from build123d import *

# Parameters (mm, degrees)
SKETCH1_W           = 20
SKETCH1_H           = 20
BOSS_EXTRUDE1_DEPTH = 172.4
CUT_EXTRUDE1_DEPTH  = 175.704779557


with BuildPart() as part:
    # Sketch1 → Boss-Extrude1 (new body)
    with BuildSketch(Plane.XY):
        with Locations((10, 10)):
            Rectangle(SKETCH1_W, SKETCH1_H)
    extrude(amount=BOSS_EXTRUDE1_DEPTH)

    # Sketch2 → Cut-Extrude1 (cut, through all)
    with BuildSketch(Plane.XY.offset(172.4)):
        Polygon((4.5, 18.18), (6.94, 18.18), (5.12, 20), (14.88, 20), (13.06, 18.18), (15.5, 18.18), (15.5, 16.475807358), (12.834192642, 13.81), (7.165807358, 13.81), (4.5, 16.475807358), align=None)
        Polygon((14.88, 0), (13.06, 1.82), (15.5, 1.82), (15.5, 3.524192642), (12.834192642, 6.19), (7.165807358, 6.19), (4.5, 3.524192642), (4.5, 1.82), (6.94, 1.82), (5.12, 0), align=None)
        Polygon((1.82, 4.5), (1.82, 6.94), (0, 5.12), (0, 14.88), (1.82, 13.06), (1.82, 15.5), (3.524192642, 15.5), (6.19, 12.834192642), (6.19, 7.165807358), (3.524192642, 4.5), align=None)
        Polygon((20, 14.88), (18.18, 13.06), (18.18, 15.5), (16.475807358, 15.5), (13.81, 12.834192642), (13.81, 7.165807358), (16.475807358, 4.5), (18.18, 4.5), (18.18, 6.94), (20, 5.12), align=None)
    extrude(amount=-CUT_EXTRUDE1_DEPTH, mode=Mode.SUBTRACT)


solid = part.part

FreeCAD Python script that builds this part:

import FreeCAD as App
import Part
import Sketcher


def add_polygon(sketch, points):
    """Adds a closed chain of lines whose ends are joined by coincident constraints."""
    first, n = sketch.GeometryCount, len(points)
    for a, b in zip(points, points[1:] + points[:1]):
        sketch.addGeometry(Part.LineSegment(App.Vector(*a, 0), App.Vector(*b, 0)), False)
    for i in range(n):
        sketch.addConstraint(Sketcher.Constraint("Coincident", first + i, 2, first + (i + 1) % n, 1))

doc = App.newDocument("Part")
body = doc.addObject("PartDesign::Body", "Body")

# Sketch on XY plane
sketch1 = doc.addObject("Sketcher::SketchObject", "Sketch")
body.addObject(sketch1)
sketch1.AttachmentSupport = (doc.XY_Plane, [""])
sketch1.MapMode = "FlatFace"
add_polygon(sketch1, [(0, 20), (0, 0), (20, 0), (20, 20)])  # lines 0-3
sketch1.addConstraint(Sketcher.Constraint("Vertical", 0))
sketch1.addConstraint(Sketcher.Constraint("Horizontal", 1))
sketch1.addConstraint(Sketcher.Constraint("Vertical", 2))
sketch1.addConstraint(Sketcher.Constraint("Horizontal", 3))
sketch1.addConstraint(Sketcher.Constraint("Coincident", 0, 2, -1, 1))
sketch1.addConstraint(Sketcher.Constraint("Equal", 3, 0))
sketch1.addConstraint(Sketcher.Constraint("DistanceX", 1, 1, 1, 2, 20.0))
pad1 = doc.addObject("PartDesign::Pad", "Pad")
body.addObject(pad1)
pad1.Profile = sketch1
pad1.Length = 172.4

# Sketch on XY plane
sketch2 = doc.addObject("Sketcher::SketchObject", "Sketch001")
body.addObject(sketch2)
sketch2.AttachmentSupport = (doc.XY_Plane, [""])
sketch2.MapMode = "FlatFace"
sketch2.AttachmentOffset = App.Placement(App.Vector(0, 0, 172.4), App.Rotation())
add_polygon(sketch2, [(6.9, 18.2), (4.5, 18.2), (4.5, 16.5), (7.2, 13.8), (12.8, 13.8), (15.5, 16.5), (15.5, 18.2), (13.1, 18.2), (14.9, 20), (5.1, 20)])  # lines 0-9
add_polygon(sketch2, [(14.9, 0), (13.1, 1.8), (15.5, 1.8), (15.5, 3.5), (12.8, 6.2), (7.2, 6.2), (4.5, 3.5), (4.5, 1.8), (6.9, 1.8), (5.1, 0)])  # lines 10-19
add_polygon(sketch2, [(1.8, 6.9), (1.8, 4.5), (3.5, 4.5), (6.2, 7.2), (6.2, 12.8), (3.5, 15.5), (1.8, 15.5), (1.8, 13.1), (0, 14.9), (0, 5.1)])  # lines 20-29
add_polygon(sketch2, [(20, 14.9), (18.2, 13.1), (18.2, 15.5), (16.5, 15.5), (13.8, 12.8), (13.8, 7.2), (16.5, 4.5), (18.2, 4.5), (18.2, 6.9), (20, 5.1)])  # lines 30-39
sketch2.addConstraint(Sketcher.Constraint("Horizontal", 0))
sketch2.addConstraint(Sketcher.Constraint("Vertical", 1))
sketch2.addConstraint(Sketcher.Constraint("Horizontal", 3))
sketch2.addConstraint(Sketcher.Constraint("Vertical", 5))
sketch2.addConstraint(Sketcher.Constraint("Horizontal", 6))
sketch2.addConstraint(Sketcher.Constraint("Horizontal", 8))
sketch2.addConstraint(Sketcher.Constraint("Horizontal", 11))
sketch2.addConstraint(Sketcher.Constraint("Vertical", 12))
sketch2.addConstraint(Sketcher.Constraint("Horizontal", 14))
sketch2.addConstraint(Sketcher.Constraint("Vertical", 16))
sketch2.addConstraint(Sketcher.Constraint("Horizontal", 17))
sketch2.addConstraint(Sketcher.Constraint("Horizontal", 19))
sketch2.addConstraint(Sketcher.Constraint("Vertical", 20))
sketch2.addConstraint(Sketcher.Constraint("Horizontal", 21))
sketch2.addConstraint(Sketcher.Constraint("Vertical", 23))
sketch2.addConstraint(Sketcher.Constraint("Horizontal", 25))
sketch2.addConstraint(Sketcher.Constraint("Vertical", 26))
sketch2.addConstraint(Sketcher.Constraint("Vertical", 28))
sketch2.addConstraint(Sketcher.Constraint("Vertical", 31))
sketch2.addConstraint(Sketcher.Constraint("Horizontal", 32))
sketch2.addConstraint(Sketcher.Constraint("Vertical", 34))
sketch2.addConstraint(Sketcher.Constraint("Horizontal", 36))
sketch2.addConstraint(Sketcher.Constraint("Vertical", 37))
sketch2.addConstraint(Sketcher.Constraint("Vertical", 39))
sketch2.addConstraint(Sketcher.Constraint("PointOnObject", 18, 2, -1))
sketch2.addConstraint(Sketcher.Constraint("PointOnObject", 27, 2, -2))
sketch2.addConstraint(Sketcher.Constraint("Perpendicular", 2, 4))
sketch2.addConstraint(Sketcher.Constraint("Parallel", 4, 7))
sketch2.addConstraint(Sketcher.Constraint("Perpendicular", 7, 9))
sketch2.addConstraint(Sketcher.Constraint("Parallel", 9, 10))
sketch2.addConstraint(Sketcher.Constraint("Parallel", 10, 13))
sketch2.addConstraint(Sketcher.Constraint("Perpendicular", 13, 15))
sketch2.addConstraint(Sketcher.Constraint("Parallel", 15, 18))
sketch2.addConstraint(Sketcher.Constraint("Parallel", 18, 22))
sketch2.addConstraint(Sketcher.Constraint("Perpendicular", 22, 24))
sketch2.addConstraint(Sketcher.Constraint("Parallel", 24, 27))
sketch2.addConstraint(Sketcher.Constraint("Perpendicular", 27, 29))
sketch2.addConstraint(Sketcher.Constraint("Parallel", 29, 30))
sketch2.addConstraint(Sketcher.Constraint("Parallel", 30, 33))
sketch2.addConstraint(Sketcher.Constraint("Perpendicular", 33, 35))
sketch2.addConstraint(Sketcher.Constraint("Parallel", 35, 38))
sketch2.addConstraint(Sketcher.Constraint("Horizontal", 1, 2, 4, 2))
sketch2.addConstraint(Sketcher.Constraint("Horizontal", 0, 2, 5, 2))
sketch2.addConstraint(Sketcher.Constraint("Horizontal", 12, 2, 15, 2))
sketch2.addConstraint(Sketcher.Constraint("Horizontal", 11, 2, 16, 2))
sketch2.addConstraint(Sketcher.Constraint("Horizontal", 26, 2, 30, 2))
sketch2.addConstraint(Sketcher.Constraint("Horizontal", 25, 2, 31, 2))
sketch2.addConstraint(Sketcher.Constraint("Horizontal", 23, 2, 33, 2))
sketch2.addConstraint(Sketcher.Constraint("Horizontal", 22, 2, 34, 2))
sketch2.addConstraint(Sketcher.Constraint("Horizontal", 21, 2, 35, 2))
sketch2.addConstraint(Sketcher.Constraint("Horizontal", 29, 2, 37, 2))
sketch2.addConstraint(Sketcher.Constraint("Horizontal", 28, 2, 38, 2))
sketch2.addConstraint(Sketcher.Constraint("Horizontal", 27, 2, 39, 2))
sketch2.addConstraint(Sketcher.Constraint("Vertical", 6, 2, 10, 2))
sketch2.addConstraint(Sketcher.Constraint("Vertical", 5, 2, 11, 2))
sketch2.addConstraint(Sketcher.Constraint("Vertical", 3, 2, 13, 2))
sketch2.addConstraint(Sketcher.Constraint("Vertical", 2, 2, 14, 2))
sketch2.addConstraint(Sketcher.Constraint("Vertical", 1, 2, 15, 2))
sketch2.addConstraint(Sketcher.Constraint("Vertical", 9, 2, 17, 2))
sketch2.addConstraint(Sketcher.Constraint("Vertical", 8, 2, 18, 2))
sketch2.addConstraint(Sketcher.Constraint("Vertical", 21, 2, 24, 2))
sketch2.addConstraint(Sketcher.Constraint("Vertical", 20, 2, 25, 2))
sketch2.addConstraint(Sketcher.Constraint("Equal", 0, 6))
sketch2.addConstraint(Sketcher.Constraint("Equal", 25, 32))
sketch2.addConstraint(Sketcher.Constraint("Equal", 36, 1))
sketch2.addConstraint(Sketcher.Constraint("Equal", 5, 12))
sketch2.addConstraint(Sketcher.Constraint("Equal", 17, 20))
sketch2.addConstraint(Sketcher.Constraint("Equal", 14, 23))
sketch2.addConstraint(Sketcher.Constraint("Equal", 20, 26))
sketch2.addConstraint(Sketcher.Constraint("Equal", 19, 28))
sketch2.addConstraint(Sketcher.Constraint("Equal", 15, 22))
sketch2.addConstraint(Sketcher.Constraint("DistanceY", -1, 1, 7, 2, 20.0))
sketch2.addConstraint(Sketcher.Constraint("DistanceX", -1, 1, 38, 2, 20.0))
sketch2.addConstraint(Sketcher.Constraint("DistanceX", 1, 2, 4, 2, 11.0))
sketch2.addConstraint(Sketcher.Constraint("DistanceX", 0, 2, 0, 1, 2.44))
sketch2.addConstraint(Sketcher.Constraint("DistanceX", 8, 2, 8, 1, 9.76))
sketch2.addConstraint(Sketcher.Constraint("DistanceX", -1, 1, 0, 2, 4.5))
sketch2.addConstraint(Sketcher.Constraint("DistanceY", -1, 1, 20, 2, 4.5))
sketch2.addConstraint(Sketcher.Constraint("DistanceY", -1, 1, 2, 2, 13.81))
sketch2.addConstraint(Sketcher.Constraint("Distance", 2, 3.770021))
pocket1 = doc.addObject("PartDesign::Pocket", "Pocket")
body.addObject(pocket1)
pocket1.Profile = sketch2
pocket1.Type = "ThroughAll"

doc.recompute()
